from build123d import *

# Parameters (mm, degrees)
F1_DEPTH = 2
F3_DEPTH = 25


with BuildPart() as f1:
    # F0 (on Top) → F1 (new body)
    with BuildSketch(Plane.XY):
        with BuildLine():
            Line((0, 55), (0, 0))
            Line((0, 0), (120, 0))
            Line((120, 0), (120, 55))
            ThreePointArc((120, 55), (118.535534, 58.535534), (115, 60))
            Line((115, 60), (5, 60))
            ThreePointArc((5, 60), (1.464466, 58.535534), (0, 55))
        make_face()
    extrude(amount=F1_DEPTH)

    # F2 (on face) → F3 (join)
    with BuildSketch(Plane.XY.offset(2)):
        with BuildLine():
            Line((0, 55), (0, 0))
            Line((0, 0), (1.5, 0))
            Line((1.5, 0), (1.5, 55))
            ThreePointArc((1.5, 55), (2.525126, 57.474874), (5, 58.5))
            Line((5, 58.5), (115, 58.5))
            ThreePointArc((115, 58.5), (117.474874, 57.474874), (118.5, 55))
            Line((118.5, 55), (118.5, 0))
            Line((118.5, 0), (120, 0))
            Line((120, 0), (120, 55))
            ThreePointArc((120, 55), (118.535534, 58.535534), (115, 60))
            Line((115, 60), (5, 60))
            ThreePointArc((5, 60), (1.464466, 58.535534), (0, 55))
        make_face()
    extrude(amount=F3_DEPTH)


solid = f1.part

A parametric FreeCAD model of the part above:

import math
import FreeCAD as App
import Part
import Sketcher

V = App.Vector

doc = App.newDocument("Part")
body = doc.addObject("PartDesign::Body", "Body")

# Sketch on XY plane
sketch1 = body.newObject("Sketcher::SketchObject", "Sketch")
sketch1.AttachmentSupport = (doc.getObject("XY_Plane"), [""])
sketch1.MapMode = "FlatFace"
sketch1.addGeometry([
    Part.LineSegment(V(0, 55, 0), V(0, 0, 0)),  # 0
    Part.LineSegment(V(0, 0, 0), V(120, 0, 0)),  # 1
    Part.LineSegment(V(120, 0, 0), V(120, 55, 0)),  # 2
    Part.ArcOfCircle(Part.Circle(V(115, 55, 0), V(0, 0, 1), 5), math.radians(0), math.radians(90)),  # 3
    Part.LineSegment(V(115, 60, 0), V(5, 60, 0)),  # 4
    Part.ArcOfCircle(Part.Circle(V(5, 55, 0), V(0, 0, 1), 5), math.radians(90), math.radians(180)),  # 5
], False)
sketch1.addConstraint([
    Sketcher.Constraint("Coincident", 0, 2, 1, 1),
    Sketcher.Constraint("Coincident", 1, 2, 2, 1),
    Sketcher.Constraint("Tangent", 2, 2, 3, 1),
    Sketcher.Constraint("Tangent", 3, 2, 4, 1),
    Sketcher.Constraint("Tangent", 4, 2, 5, 1),
    Sketcher.Constraint("Tangent", 5, 2, 0, 1),
    Sketcher.Constraint("Vertical", 0),
    Sketcher.Constraint("Horizontal", 1),
    Sketcher.Constraint("Vertical", 2),
    Sketcher.Constraint("Horizontal", 4),
    Sketcher.Constraint("Coincident", 0, 2, -1, 1),
    Sketcher.Constraint("Equal", 3, 5),
    Sketcher.Constraint("Radius", 3, 5.0),
    Sketcher.Constraint("DistanceX", 1, 1, 1, 2, 120.0),
    Sketcher.Constraint("DistanceY", 0, 2, 0, 1, 55.0),
])
pad1 = body.newObject("PartDesign::Pad", "Pad")
pad1.Profile = sketch1
pad1.Length = 2

# Sketch on XY plane
sketch2 = body.newObject("Sketcher::SketchObject", "Sketch001")
sketch2.AttachmentSupport = (doc.getObject("XY_Plane"), [""])
sketch2.MapMode = "FlatFace"
sketch2.AttachmentOffset = App.Placement(V(0, 0, 2), App.Rotation())
sketch2.addGeometry([
    Part.LineSegment(V(0, 55, 0), V(0, 0, 0)),  # 0
    Part.LineSegment(V(0, 0, 0), V(1.5, 0, 0)),  # 1
    Part.LineSegment(V(1.5, 0, 0), V(1.5, 55, 0)),  # 2
    Part.ArcOfCircle(Part.Circle(V(5, 55, 0), V(0, 0, 1), 3.5), math.radians(90), math.radians(180)),  # 3
    Part.LineSegment(V(5, 58.5, 0), V(115, 58.5, 0)),  # 4
    Part.ArcOfCircle(Part.Circle(V(115, 55, 0), V(0, 0, 1), 3.5), math.radians(0), math.radians(90)),  # 5
    Part.LineSegment(V(118.5, 55, 0), V(118.5, 0, 0)),  # 6
    Part.LineSegment(V(118.5, 0, 0), V(120, 0, 0)),  # 7
    Part.LineSegment(V(120, 0, 0), V(120, 55, 0)),  # 8
    Part.ArcOfCircle(Part.Circle(V(115, 55, 0), V(0, 0, 1), 5), math.radians(0), math.radians(90)),  # 9
    Part.LineSegment(V(115, 60, 0), V(5, 60, 0)),  # 10
    Part.ArcOfCircle(Part.Circle(V(5, 55, 0), V(0, 0, 1), 5), math.radians(90), math.radians(180)),  # 11
], False)
sketch2.addConstraint([
    Sketcher.Constraint("Coincident", 0, 2, 1, 1),
    Sketcher.Constraint("Coincident", 1, 2, 2, 1),
    Sketcher.Constraint("Tangent", 2, 2, 3, 2),
    Sketcher.Constraint("Tangent", 3, 1, 4, 1),
    Sketcher.Constraint("Tangent", 4, 2, 5, 2),
    Sketcher.Constraint("Tangent", 5, 1, 6, 1),
    Sketcher.Constraint("Coincident", 6, 2, 7, 1),
    Sketcher.Constraint("Coincident", 7, 2, 8, 1),
    Sketcher.Constraint("Tangent", 8, 2, 9, 1),
    Sketcher.Constraint("Tangent", 9, 2, 10, 1),
    Sketcher.Constraint("Tangent", 10, 2, 11, 1),
    Sketcher.Constraint("Tangent", 11, 2, 0, 1),
    Sketcher.Constraint("Vertical", 0),
    Sketcher.Constraint("Horizontal", 1),
    Sketcher.Constraint("Vertical", 2),
    Sketcher.Constraint("Horizontal", 4),
    Sketcher.Constraint("Vertical", 6),
    Sketcher.Constraint("Horizontal", 7),
    Sketcher.Constraint("Vertical", 8),
    Sketcher.Constraint("Horizontal", 10),
    Sketcher.Constraint("Coincident", 0, 2, -1, 1),
    Sketcher.Constraint("Coincident", 9, 3, 5, 3),
    Sketcher.Constraint("Coincident", 11, 3, 3, 3),
    Sketcher.Constraint("Equal", 3, 5),
    Sketcher.Constraint("PointOnObject", 6, 2, -1),
    Sketcher.Constraint("Radius", 9, 5.0),
    Sketcher.Constraint("Radius", 3, 3.499999),
    Sketcher.Constraint("DistanceX", 4, 1, 4, 2, 110.0),
    Sketcher.Constraint("DistanceY", 0, 2, 0, 1, 55.0),
])
pad2 = body.newObject("PartDesign::Pad", "Pad001")
pad2.Profile = sketch2
pad2.Length = 25

doc.recompute()
